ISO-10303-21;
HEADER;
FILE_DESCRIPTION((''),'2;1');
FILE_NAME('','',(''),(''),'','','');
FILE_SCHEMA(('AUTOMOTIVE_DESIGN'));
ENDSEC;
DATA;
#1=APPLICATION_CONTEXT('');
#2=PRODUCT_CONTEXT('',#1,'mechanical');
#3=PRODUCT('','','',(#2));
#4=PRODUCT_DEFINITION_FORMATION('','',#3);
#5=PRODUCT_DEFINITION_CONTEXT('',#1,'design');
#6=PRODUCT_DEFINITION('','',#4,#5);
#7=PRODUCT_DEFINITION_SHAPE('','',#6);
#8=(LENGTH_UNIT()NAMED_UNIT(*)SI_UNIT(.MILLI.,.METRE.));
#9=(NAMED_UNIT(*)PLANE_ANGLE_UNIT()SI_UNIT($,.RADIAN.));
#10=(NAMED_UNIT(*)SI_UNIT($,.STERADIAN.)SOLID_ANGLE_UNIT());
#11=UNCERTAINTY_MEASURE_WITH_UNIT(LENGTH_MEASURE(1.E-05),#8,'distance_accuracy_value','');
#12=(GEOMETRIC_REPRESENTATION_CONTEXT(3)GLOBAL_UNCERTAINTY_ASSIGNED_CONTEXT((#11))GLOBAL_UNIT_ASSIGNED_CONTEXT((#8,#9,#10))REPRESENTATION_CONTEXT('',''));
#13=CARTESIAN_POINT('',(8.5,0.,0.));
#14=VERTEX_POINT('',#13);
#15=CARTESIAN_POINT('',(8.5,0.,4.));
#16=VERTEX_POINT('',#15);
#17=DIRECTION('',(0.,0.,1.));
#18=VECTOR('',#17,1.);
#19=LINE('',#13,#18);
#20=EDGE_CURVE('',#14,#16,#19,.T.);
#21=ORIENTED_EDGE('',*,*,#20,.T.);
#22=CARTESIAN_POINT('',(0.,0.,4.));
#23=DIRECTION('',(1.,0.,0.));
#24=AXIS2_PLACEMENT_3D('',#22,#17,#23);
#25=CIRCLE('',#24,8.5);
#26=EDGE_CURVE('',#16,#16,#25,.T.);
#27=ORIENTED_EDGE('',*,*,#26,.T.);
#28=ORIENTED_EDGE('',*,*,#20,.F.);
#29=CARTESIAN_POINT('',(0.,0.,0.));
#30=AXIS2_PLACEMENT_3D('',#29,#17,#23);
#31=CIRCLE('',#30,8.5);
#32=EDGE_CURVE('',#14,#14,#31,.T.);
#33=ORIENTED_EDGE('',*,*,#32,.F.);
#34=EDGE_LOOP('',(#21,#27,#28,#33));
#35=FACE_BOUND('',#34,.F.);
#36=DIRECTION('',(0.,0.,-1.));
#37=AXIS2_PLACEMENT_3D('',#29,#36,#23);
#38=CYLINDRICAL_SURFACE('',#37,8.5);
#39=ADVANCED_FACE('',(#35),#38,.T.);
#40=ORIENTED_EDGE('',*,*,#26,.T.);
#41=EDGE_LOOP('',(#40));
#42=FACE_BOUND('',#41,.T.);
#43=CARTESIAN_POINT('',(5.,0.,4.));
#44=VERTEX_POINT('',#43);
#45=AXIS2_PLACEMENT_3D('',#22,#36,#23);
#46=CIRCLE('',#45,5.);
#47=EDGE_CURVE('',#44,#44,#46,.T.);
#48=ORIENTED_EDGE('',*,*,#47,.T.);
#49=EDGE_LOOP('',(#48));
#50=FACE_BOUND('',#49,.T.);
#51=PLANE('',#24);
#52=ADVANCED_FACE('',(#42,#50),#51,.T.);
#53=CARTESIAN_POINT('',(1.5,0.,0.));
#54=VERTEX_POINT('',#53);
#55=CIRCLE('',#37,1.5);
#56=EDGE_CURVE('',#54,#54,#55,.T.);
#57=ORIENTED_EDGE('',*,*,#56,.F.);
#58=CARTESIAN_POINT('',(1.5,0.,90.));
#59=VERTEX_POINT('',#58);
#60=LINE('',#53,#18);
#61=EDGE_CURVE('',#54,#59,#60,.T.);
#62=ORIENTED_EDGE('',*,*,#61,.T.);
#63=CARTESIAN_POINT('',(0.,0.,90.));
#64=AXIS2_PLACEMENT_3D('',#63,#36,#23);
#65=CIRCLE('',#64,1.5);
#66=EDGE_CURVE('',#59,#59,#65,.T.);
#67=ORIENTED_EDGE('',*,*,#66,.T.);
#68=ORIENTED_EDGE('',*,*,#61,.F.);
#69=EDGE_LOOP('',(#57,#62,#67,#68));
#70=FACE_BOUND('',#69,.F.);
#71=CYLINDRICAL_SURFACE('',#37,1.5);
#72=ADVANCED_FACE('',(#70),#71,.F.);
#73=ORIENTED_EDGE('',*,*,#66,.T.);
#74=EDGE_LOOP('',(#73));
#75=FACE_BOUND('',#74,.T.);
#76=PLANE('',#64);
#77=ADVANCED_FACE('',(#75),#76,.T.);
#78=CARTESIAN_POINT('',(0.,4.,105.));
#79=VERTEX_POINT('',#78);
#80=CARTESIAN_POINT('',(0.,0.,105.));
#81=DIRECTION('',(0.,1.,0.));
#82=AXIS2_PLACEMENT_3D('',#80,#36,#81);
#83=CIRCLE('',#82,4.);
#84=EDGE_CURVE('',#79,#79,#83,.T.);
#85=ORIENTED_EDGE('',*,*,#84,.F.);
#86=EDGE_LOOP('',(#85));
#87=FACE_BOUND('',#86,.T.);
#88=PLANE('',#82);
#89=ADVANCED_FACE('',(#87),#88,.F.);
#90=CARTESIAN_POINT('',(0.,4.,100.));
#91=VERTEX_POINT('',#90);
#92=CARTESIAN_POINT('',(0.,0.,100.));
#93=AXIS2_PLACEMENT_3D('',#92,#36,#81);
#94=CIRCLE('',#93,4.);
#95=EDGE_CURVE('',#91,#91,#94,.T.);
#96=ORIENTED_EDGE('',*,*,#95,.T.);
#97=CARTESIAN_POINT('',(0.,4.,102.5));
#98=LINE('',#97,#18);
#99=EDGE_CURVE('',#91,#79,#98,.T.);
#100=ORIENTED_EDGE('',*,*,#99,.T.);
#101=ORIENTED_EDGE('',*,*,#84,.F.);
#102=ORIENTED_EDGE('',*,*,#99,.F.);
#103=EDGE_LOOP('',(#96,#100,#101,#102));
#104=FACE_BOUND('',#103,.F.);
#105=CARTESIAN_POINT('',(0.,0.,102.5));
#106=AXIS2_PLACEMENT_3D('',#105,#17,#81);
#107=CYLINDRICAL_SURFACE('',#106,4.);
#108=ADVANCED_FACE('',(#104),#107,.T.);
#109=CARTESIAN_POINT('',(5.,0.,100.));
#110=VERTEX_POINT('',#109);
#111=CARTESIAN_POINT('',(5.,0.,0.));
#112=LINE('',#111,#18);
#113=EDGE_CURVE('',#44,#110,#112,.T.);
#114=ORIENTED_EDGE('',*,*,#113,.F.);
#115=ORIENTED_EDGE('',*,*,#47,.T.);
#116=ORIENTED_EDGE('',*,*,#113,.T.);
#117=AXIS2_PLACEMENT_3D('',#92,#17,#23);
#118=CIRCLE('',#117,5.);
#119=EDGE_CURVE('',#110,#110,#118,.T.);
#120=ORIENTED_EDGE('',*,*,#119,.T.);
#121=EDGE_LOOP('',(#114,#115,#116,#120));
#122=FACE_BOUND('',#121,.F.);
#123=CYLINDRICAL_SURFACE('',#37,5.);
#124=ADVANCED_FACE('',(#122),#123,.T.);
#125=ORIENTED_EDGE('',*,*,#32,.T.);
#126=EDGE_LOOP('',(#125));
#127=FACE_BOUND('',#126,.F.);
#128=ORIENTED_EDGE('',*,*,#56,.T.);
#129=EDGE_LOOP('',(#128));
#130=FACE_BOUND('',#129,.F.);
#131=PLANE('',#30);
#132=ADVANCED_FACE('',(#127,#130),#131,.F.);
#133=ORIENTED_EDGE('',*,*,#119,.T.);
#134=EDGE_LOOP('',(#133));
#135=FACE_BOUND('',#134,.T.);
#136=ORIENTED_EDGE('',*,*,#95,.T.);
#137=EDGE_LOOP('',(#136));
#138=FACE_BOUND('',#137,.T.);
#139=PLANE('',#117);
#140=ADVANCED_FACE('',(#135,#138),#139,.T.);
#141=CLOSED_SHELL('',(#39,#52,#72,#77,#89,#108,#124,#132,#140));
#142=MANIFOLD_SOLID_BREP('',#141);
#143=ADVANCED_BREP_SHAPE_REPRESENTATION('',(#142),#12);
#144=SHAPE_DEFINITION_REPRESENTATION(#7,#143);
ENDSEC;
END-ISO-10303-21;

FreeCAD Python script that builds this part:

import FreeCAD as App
import Part
import Sketcher
from FreeCAD import Vector


def add_polygon(sketch, points):
    """Adds a closed chain of lines whose ends are joined by coincident constraints."""
    first, n = sketch.GeometryCount, len(points)
    for a, b in zip(points, points[1:] + points[:1]):
        sketch.addGeometry(Part.LineSegment(App.Vector(*a, 0), App.Vector(*b, 0)), False)
    for i in range(n):
        sketch.addConstraint(Sketcher.Constraint("Coincident", first + i, 2, first + (i + 1) % n, 1))

doc = App.newDocument("Part")
body = doc.addObject("PartDesign::Body", "Body")

# Sketch on XY plane
sketch1 = body.newObject("Sketcher::SketchObject", "Sketch")
sketch1.AttachmentSupport = (doc.getObject("XY_Plane"), [""])
sketch1.MapMode = "FlatFace"
sketch1.addGeometry(Part.Circle(Vector(0, 0, 0), Vector(0, 0, 1), 8), False)
sketch1.addConstraint([
    Sketcher.Constraint("Coincident", 0, 3, -1, 1),
    Sketcher.Constraint("Diameter", 0, 17.0),
])
pad1 = body.newObject("PartDesign::Pad", "Pad")
pad1.Profile = sketch1
pad1.Length = 4

# Sketch on XY plane
sketch2 = body.newObject("Sketcher::SketchObject", "Sketch001")
sketch2.AttachmentSupport = (doc.getObject("XY_Plane"), [""])
sketch2.MapMode = "FlatFace"
sketch2.addGeometry(Part.Circle(Vector(0, 0, 0), Vector(0, 0, 1), 5), False)
sketch2.addConstraint([
    Sketcher.Constraint("Coincident", 0, 3, -1, 1),
    Sketcher.Constraint("Diameter", 0, 10.0),
])
pad2 = body.newObject("PartDesign::Pad", "Pad001")
pad2.Profile = sketch2
pad2.Length = 100

# Sketch on YZ plane
sketch3 = body.newObject("Sketcher::SketchObject", "Sketch002")
sketch3.AttachmentSupport = (doc.getObject("YZ_Plane"), [""])
sketch3.MapMode = "FlatFace"
add_polygon(sketch3, [(0, 105), (0, 100), (4, 100), (4, 105)])  # lines 0-3
sketch3.addConstraint([
    Sketcher.Constraint("Vertical", 0),
    Sketcher.Constraint("Horizontal", 1),
    Sketcher.Constraint("Vertical", 2),
    Sketcher.Constraint("Horizontal", 3),
    Sketcher.Constraint("PointOnObject", 0, 2, -2),
    Sketcher.Constraint("DistanceX", 1, 1, 1, 2, 4.0),
    Sketcher.Constraint("DistanceY", 0, 2, 0, 1, 5.0),
    Sketcher.Constraint("DistanceY", -1, 1, 0, 2, 100.0),
])
revolution = body.newObject("PartDesign::Revolution", "Revolution")
revolution.Profile = sketch3
revolution.ReferenceAxis = (sketch3, ["V_Axis"])
revolution.Angle = 360

# Sketch on XY plane
sketch4 = body.newObject("Sketcher::SketchObject", "Sketch003")
sketch4.AttachmentSupport = (doc.getObject("XY_Plane"), [""])
sketch4.MapMode = "FlatFace"
sketch4.addGeometry(Part.Circle(Vector(0, 0, 0), Vector(0, 0, 1), 1.5), False)
sketch4.addConstraint([
    Sketcher.Constraint("Coincident", 0, 3, -1, 1),
    Sketcher.Constraint("Diameter", 0, 3.0),
])
pocket1 = body.newObject("PartDesign::Pocket", "Pocket")
pocket1.Profile = sketch4
pocket1.Length = 90
pocket1.Reversed = True

doc.recompute()
